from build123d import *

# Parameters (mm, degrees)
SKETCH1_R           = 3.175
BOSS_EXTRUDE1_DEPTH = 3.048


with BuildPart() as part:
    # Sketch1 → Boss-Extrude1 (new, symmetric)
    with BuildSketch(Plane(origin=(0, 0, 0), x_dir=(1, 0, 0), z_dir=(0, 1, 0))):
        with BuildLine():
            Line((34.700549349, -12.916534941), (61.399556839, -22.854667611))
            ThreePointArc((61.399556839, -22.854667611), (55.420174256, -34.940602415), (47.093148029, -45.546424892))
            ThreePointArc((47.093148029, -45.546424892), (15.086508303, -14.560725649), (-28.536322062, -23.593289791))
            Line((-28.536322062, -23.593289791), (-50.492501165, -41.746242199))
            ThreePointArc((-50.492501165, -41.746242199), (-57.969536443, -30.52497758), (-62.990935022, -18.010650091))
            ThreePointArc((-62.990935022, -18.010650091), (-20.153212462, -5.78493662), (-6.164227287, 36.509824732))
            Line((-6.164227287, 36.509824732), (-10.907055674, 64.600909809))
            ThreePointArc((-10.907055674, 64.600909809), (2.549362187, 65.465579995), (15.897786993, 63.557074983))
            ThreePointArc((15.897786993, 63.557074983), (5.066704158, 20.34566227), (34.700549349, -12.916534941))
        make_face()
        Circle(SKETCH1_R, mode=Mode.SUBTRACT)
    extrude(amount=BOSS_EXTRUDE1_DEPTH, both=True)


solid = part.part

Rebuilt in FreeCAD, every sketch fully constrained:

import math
import FreeCAD as App
import Part
import Sketcher
Q = App.Units.Quantity

doc = App.newDocument("Part")
params = doc.addObject("Spreadsheet::Sheet", "Params")
for row, (alias, value) in enumerate([
    ("sketch1_diameter", "0.25 in"),
    ("sketch1_radius", "1.875 in"),
    ("pad1_length", "0.24 in"),
], start=1):
    params.set(f"A{row}", alias)
    params.set(f"B{row}", "=" + value)
    params.setAlias(f"B{row}", alias)

body = doc.addObject("PartDesign::Body", "Body")

sketch1 = doc.addObject("Sketcher::SketchObject", "Sketch")
body.addObject(sketch1)
sketch1.AttachmentSupport = (doc.XZ_Plane, [""])
sketch1.MapMode = "FlatFace"
sketch1.addGeometry([
    Part.LineSegment(App.Vector(61.4, 22.9, 0), App.Vector(34.7, 12.9, 0)),
    Part.ArcOfCircle(Part.Circle(App.Vector(51.3, -31.7, 0), App.Vector(0, 0, 1), 47.6), math.radians(110), math.radians(222)),
    Part.ArcOfCircle(Part.Circle(App.Vector(0, 0, 0), App.Vector(0, 0, 1), 65.5), math.radians(-100), math.radians(-76)),
    Part.LineSegment(App.Vector(-10.9, -64.6, 0), App.Vector(-6.2, -36.5, 0)),
    Part.ArcOfCircle(Part.Circle(App.Vector(-53.1, -28.6, 0), App.Vector(0, 0, 1), 47.6), math.radians(-10), math.radians(102)),
    Part.ArcOfCircle(Part.Circle(App.Vector(0, 0, 0), App.Vector(0, 0, 1), 65.5), math.radians(140), math.radians(164)),
    Part.LineSegment(App.Vector(-50.5, 41.7, 0), App.Vector(-28.5, 23.6, 0)),
    Part.ArcOfCircle(Part.Circle(App.Vector(1.8, 60.3, 0), App.Vector(0, 0, 1), 47.6), math.radians(-130), math.radians(-18)),
    Part.ArcOfCircle(Part.Circle(App.Vector(0, 0, 0), App.Vector(0, 0, 1), 65.5), math.radians(20), math.radians(44)),
    Part.Circle(App.Vector(0, 0, 0), App.Vector(0, 0, 1), 3.2),
], False)
sketch1.addConstraint([
    Sketcher.Constraint("Tangent", 0, 2, 1, 1),
    Sketcher.Constraint("Coincident", 1, 2, 2, 2),
    Sketcher.Constraint("Coincident", 2, 1, 3, 1),
    Sketcher.Constraint("Tangent", 3, 2, 4, 1),
    Sketcher.Constraint("Coincident", 4, 2, 5, 2),
    Sketcher.Constraint("Coincident", 5, 1, 6, 1),
    Sketcher.Constraint("Tangent", 6, 2, 7, 1),
    Sketcher.Constraint("Coincident", 7, 2, 8, 2),
    Sketcher.Constraint("Coincident", 8, 1, 0, 1),
    Sketcher.Constraint("Coincident", 2, 3, -1, 1),
    Sketcher.Constraint("Coincident", 5, 3, -1, 1),
    Sketcher.Constraint("Coincident", 8, 3, -1, 1),
    Sketcher.Constraint("Coincident", 9, 3, -1, 1),
    Sketcher.Constraint("Equal", 1, 4),
    Sketcher.Constraint("Equal", 2, 5),
    Sketcher.Constraint("Equal", 4, 7),
    Sketcher.Constraint("Equal", 5, 8),
    Sketcher.Constraint("Equal", 0, 3),
    Sketcher.Constraint("Equal", 3, 6),
    Sketcher.Constraint("Diameter", 9, Q("0.25 in")),
    Sketcher.Constraint("Radius", 1, Q("1.875 in")),
    Sketcher.Constraint("Radius", 2, 65.5152),
    Sketcher.Constraint("DistanceX", 4, 3, -1, 1, 53.124602),
    Sketcher.Constraint("DistanceX", 5, 1, -1, 1, 50.492501),
    Sketcher.Constraint("DistanceX", 4, 3, 7, 3, 54.934899),
    Sketcher.Constraint("DistanceX", 0, 2, 7, 2, 12.392599),
    Sketcher.Constraint("DistanceY", 1, 3, -1, 1, 31.716678),
    Sketcher.Constraint("DistanceY", -1, 1, 7, 3, 60.297831),
    Sketcher.Constraint("DistanceY", 2, 1, -1, 1, 64.60091),
])
sketch1.setExpression("Constraints[19]", "Params.sketch1_diameter")
sketch1.setExpression("Constraints[20]", "Params.sketch1_radius")
pad1 = doc.addObject("PartDesign::Pad", "Pad")
body.addObject(pad1)
pad1.Profile = sketch1
pad1.setExpression("Length", "Params.pad1_length")
pad1.Midplane = True

doc.recompute()
